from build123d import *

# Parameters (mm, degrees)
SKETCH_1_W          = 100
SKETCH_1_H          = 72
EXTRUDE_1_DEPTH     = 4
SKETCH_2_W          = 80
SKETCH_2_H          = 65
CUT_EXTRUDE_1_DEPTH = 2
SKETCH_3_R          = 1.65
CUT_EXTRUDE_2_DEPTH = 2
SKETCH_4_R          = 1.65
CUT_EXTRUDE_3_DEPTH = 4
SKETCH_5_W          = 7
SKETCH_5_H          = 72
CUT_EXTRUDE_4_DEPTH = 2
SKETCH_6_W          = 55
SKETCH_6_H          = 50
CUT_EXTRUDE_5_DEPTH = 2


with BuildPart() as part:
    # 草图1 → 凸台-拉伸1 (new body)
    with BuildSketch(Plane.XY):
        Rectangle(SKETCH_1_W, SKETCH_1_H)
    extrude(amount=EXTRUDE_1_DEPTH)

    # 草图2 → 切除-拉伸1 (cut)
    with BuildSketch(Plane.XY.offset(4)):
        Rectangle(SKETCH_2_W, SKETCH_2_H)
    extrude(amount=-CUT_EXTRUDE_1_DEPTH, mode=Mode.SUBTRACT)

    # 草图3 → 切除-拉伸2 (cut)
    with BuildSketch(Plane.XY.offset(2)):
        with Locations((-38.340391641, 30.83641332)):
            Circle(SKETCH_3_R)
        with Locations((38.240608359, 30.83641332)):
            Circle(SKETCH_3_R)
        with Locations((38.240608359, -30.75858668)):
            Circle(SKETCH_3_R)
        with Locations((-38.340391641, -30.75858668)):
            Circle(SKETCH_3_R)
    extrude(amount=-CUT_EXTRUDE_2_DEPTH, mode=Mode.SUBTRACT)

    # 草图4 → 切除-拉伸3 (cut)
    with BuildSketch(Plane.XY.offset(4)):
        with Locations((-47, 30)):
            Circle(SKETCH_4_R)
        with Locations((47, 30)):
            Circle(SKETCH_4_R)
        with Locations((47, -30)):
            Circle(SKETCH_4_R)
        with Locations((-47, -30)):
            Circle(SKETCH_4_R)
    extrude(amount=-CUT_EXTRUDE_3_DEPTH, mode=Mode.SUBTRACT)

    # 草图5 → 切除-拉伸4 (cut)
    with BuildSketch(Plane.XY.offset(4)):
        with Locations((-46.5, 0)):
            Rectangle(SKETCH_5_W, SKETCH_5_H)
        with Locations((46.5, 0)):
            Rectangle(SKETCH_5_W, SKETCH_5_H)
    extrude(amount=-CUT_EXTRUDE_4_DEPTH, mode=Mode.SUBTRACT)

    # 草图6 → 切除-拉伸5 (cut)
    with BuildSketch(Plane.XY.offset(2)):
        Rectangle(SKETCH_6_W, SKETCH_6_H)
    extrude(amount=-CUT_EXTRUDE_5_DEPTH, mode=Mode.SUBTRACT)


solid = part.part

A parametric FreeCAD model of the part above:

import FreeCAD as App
import Part
import Sketcher
from FreeCAD import Vector

doc = App.newDocument("Part")
body = doc.addObject("PartDesign::Body", "Body")

# Sketch on XY plane
sketch1 = doc.addObject("Sketcher::SketchObject", "Sketch")
body.addObject(sketch1)
sketch1.AttachmentSupport = (doc.XY_Plane, [""])
sketch1.MapMode = "FlatFace"
sketch1.addGeometry([
    Part.LineSegment(Vector(-50, 36, 0), Vector(-50, -36, 0)),
    Part.LineSegment(Vector(-50, -36, 0), Vector(50, -36, 0)),
    Part.LineSegment(Vector(50, -36, 0), Vector(50, 36, 0)),
    Part.LineSegment(Vector(50, 36, 0), Vector(-50, 36, 0)),
], False)
sketch1.addConstraint([
    Sketcher.Constraint("Coincident", 0, 2, 1, 1),
    Sketcher.Constraint("Coincident", 1, 2, 2, 1),
    Sketcher.Constraint("Coincident", 2, 2, 3, 1),
    Sketcher.Constraint("Coincident", 3, 2, 0, 1),
    Sketcher.Constraint("Vertical", 0),
    Sketcher.Constraint("Horizontal", 1),
    Sketcher.Constraint("Vertical", 2),
    Sketcher.Constraint("Horizontal", 3),
    Sketcher.Constraint("Symmetric", 0, 2, 2, 2, -1, 1),
    Sketcher.Constraint("DistanceX", 1, 1, 1, 2, 100.0),
    Sketcher.Constraint("DistanceY", 0, 2, 0, 1, 72.0),
])
pad1 = doc.addObject("PartDesign::Pad", "Pad")
body.addObject(pad1)
pad1.Profile = sketch1
pad1.Length = 4

# Sketch on XY plane
sketch2 = doc.addObject("Sketcher::SketchObject", "Sketch001")
body.addObject(sketch2)
sketch2.AttachmentSupport = (doc.XY_Plane, [""])
sketch2.MapMode = "FlatFace"
sketch2.AttachmentOffset = App.Placement(Vector(0, 0, 4), App.Rotation())
sketch2.addGeometry([
    Part.LineSegment(Vector(-40, 32, 0), Vector(-40, -32, 0)),
    Part.LineSegment(Vector(-40, -32, 0), Vector(40, -32, 0)),
    Part.LineSegment(Vector(40, -32, 0), Vector(40, 32, 0)),
    Part.LineSegment(Vector(40, 32, 0), Vector(-40, 32, 0)),
], False)
sketch2.addConstraint([
    Sketcher.Constraint("Coincident", 0, 2, 1, 1),
    Sketcher.Constraint("Coincident", 1, 2, 2, 1),
    Sketcher.Constraint("Coincident", 2, 2, 3, 1),
    Sketcher.Constraint("Coincident", 3, 2, 0, 1),
    Sketcher.Constraint("Vertical", 0),
    Sketcher.Constraint("Horizontal", 1),
    Sketcher.Constraint("Vertical", 2),
    Sketcher.Constraint("Horizontal", 3),
    Sketcher.Constraint("Symmetric", 0, 2, 2, 2, -1, 1),
    Sketcher.Constraint("DistanceX", 1, 1, 1, 2, 80.0),
    Sketcher.Constraint("DistanceY", 0, 2, 0, 1, 65.0),
])
pocket1 = doc.addObject("PartDesign::Pocket", "Pocket")
body.addObject(pocket1)
pocket1.Profile = sketch2
pocket1.Length = 2

# Sketch on XY plane
sketch3 = doc.addObject("Sketcher::SketchObject", "Sketch002")
body.addObject(sketch3)
sketch3.AttachmentSupport = (doc.XY_Plane, [""])
sketch3.MapMode = "FlatFace"
sketch3.AttachmentOffset = App.Placement(Vector(0, 0, 2), App.Rotation())
sketch3.addGeometry([
    Part.Circle(Vector(-38.3, 30.8, 0), Vector(0, 0, 1), 1.6),
    Part.Circle(Vector(38.2, 30.8, 0), Vector(0, 0, 1), 1.6),
    Part.Circle(Vector(38.2, -30.8, 0), Vector(0, 0, 1), 1.6),
    Part.Circle(Vector(-38.3, -30.8, 0), Vector(0, 0, 1), 1.6),
], False)
sketch3.addConstraint([
    Sketcher.Constraint("Equal", 0, 1),
    Sketcher.Constraint("Equal", 1, 2),
    Sketcher.Constraint("Equal", 2, 3),
    Sketcher.Constraint("Horizontal", 0, 3, 1, 3),
    Sketcher.Constraint("Horizontal", 2, 3, 3, 3),
    Sketcher.Constraint("Vertical", 1, 3, 2, 3),
    Sketcher.Constraint("Vertical", 0, 3, 3, 3),
    Sketcher.Constraint("Diameter", 0, 3.3),
    Sketcher.Constraint("DistanceX", 0, 3, 1, 3, 76.581),
    Sketcher.Constraint("DistanceY", 2, 3, 1, 3, 61.595),
    Sketcher.Constraint("DistanceX", 0, 3, -1, 1, 38.340392),
    Sketcher.Constraint("DistanceY", -1, 1, 0, 3, 30.836413),
])
pocket2 = doc.addObject("PartDesign::Pocket", "Pocket001")
body.addObject(pocket2)
pocket2.Profile = sketch3
pocket2.Length = 2

# Sketch on XY plane
sketch4 = doc.addObject("Sketcher::SketchObject", "Sketch003")
body.addObject(sketch4)
sketch4.AttachmentSupport = (doc.XY_Plane, [""])
sketch4.MapMode = "FlatFace"
sketch4.AttachmentOffset = App.Placement(Vector(0, 0, 4), App.Rotation())
sketch4.addGeometry([
    Part.Circle(Vector(-47, 30, 0), Vector(0, 0, 1), 1.6),
    Part.Circle(Vector(47, 30, 0), Vector(0, 0, 1), 1.6),
    Part.Circle(Vector(47, -30, 0), Vector(0, 0, 1), 1.6),
    Part.Circle(Vector(-47, -30, 0), Vector(0, 0, 1), 1.6),
], False)
sketch4.addConstraint([
    Sketcher.Constraint("Equal", 0, 1),
    Sketcher.Constraint("Equal", 1, 2),
    Sketcher.Constraint("Equal", 2, 3),
    Sketcher.Constraint("Symmetric", 0, 3, 2, 3, -1, 1),
    Sketcher.Constraint("Symmetric", 1, 3, 3, 3, -1, 1),
    Sketcher.Constraint("Symmetric", 0, 3, 1, 3, -2),
    Sketcher.Constraint("Diameter", 0, 3.3),
    Sketcher.Constraint("DistanceX", 0, 3, -1, 1, 47.0),
    Sketcher.Constraint("DistanceY", -1, 1, 0, 3, 30.0),
])
pocket3 = doc.addObject("PartDesign::Pocket", "Pocket002")
body.addObject(pocket3)
pocket3.Profile = sketch4
pocket3.Length = 4

# Sketch on XY plane
sketch5 = doc.addObject("Sketcher::SketchObject", "Sketch004")
body.addObject(sketch5)
sketch5.AttachmentSupport = (doc.XY_Plane, [""])
sketch5.MapMode = "FlatFace"
sketch5.AttachmentOffset = App.Placement(Vector(0, 0, 4), App.Rotation())
sketch5.addGeometry([
    Part.LineSegment(Vector(-50, 36, 0), Vector(-50, -36, 0)),  # 0
    Part.LineSegment(Vector(-50, -36, 0), Vector(-43, -36, 0)),  # 1
    Part.LineSegment(Vector(-43, -36, 0), Vector(-43, 36, 0)),  # 2
    Part.LineSegment(Vector(-43, 36, 0), Vector(-50, 36, 0)),  # 3
    Part.LineSegment(Vector(43, 36, 0), Vector(43, -36, 0)),  # 4
    Part.LineSegment(Vector(43, -36, 0), Vector(50, -36, 0)),  # 5
    Part.LineSegment(Vector(50, -36, 0), Vector(50, 36, 0)),  # 6
    Part.LineSegment(Vector(50, 36, 0), Vector(43, 36, 0)),  # 7
], False)
sketch5.addConstraint([
    Sketcher.Constraint("Coincident", 0, 2, 1, 1),
    Sketcher.Constraint("Coincident", 1, 2, 2, 1),
    Sketcher.Constraint("Coincident", 2, 2, 3, 1),
    Sketcher.Constraint("Coincident", 3, 2, 0, 1),
    Sketcher.Constraint("Coincident", 4, 2, 5, 1),
    Sketcher.Constraint("Coincident", 5, 2, 6, 1),
    Sketcher.Constraint("Coincident", 6, 2, 7, 1),
    Sketcher.Constraint("Coincident", 7, 2, 4, 1),
    Sketcher.Constraint("Vertical", 0),
    Sketcher.Constraint("Horizontal", 1),
    Sketcher.Constraint("Vertical", 2),
    Sketcher.Constraint("Horizontal", 3),
    Sketcher.Constraint("Vertical", 4),
    Sketcher.Constraint("Horizontal", 5),
    Sketcher.Constraint("Vertical", 6),
    Sketcher.Constraint("Horizontal", 7),
    Sketcher.Constraint("Symmetric", 2, 2, 4, 2, -1, 1),
    Sketcher.Constraint("Symmetric", 0, 2, 6, 2, -1, 1),
    Sketcher.Constraint("Horizontal", 1, 2, 4, 2),
    Sketcher.Constraint("DistanceX", 1, 1, 1, 2, 7.0),
    Sketcher.Constraint("DistanceY", 0, 2, 0, 1, 72.0),
    Sketcher.Constraint("DistanceX", 0, 2, -1, 1, 50.0),
])
pocket4 = doc.addObject("PartDesign::Pocket", "Pocket003")
body.addObject(pocket4)
pocket4.Profile = sketch5
pocket4.Length = 2

# Sketch on XY plane
sketch6 = doc.addObject("Sketcher::SketchObject", "Sketch005")
body.addObject(sketch6)
sketch6.AttachmentSupport = (doc.XY_Plane, [""])
sketch6.MapMode = "FlatFace"
sketch6.AttachmentOffset = App.Placement(Vector(0, 0, 2), App.Rotation())
sketch6.addGeometry([
    Part.LineSegment(Vector(-28, 25, 0), Vector(-28, -25, 0)),
    Part.LineSegment(Vector(-28, -25, 0), Vector(28, -25, 0)),
    Part.LineSegment(Vector(28, -25, 0), Vector(28, 25, 0)),
    Part.LineSegment(Vector(28, 25, 0), Vector(-28, 25, 0)),
], False)
sketch6.addConstraint([
    Sketcher.Constraint("Coincident", 0, 2, 1, 1),
    Sketcher.Constraint("Coincident", 1, 2, 2, 1),
    Sketcher.Constraint("Coincident", 2, 2, 3, 1),
    Sketcher.Constraint("Coincident", 3, 2, 0, 1),
    Sketcher.Constraint("Vertical", 0),
    Sketcher.Constraint("Horizontal", 1),
    Sketcher.Constraint("Vertical", 2),
    Sketcher.Constraint("Horizontal", 3),
    Sketcher.Constraint("Symmetric", 0, 2, 2, 2, -1, 1),
    Sketcher.Constraint("DistanceX", 1, 1, 1, 2, 55.0),
    Sketcher.Constraint("DistanceY", 0, 2, 0, 1, 50.0),
])
pocket5 = doc.addObject("PartDesign::Pocket", "Pocket004")
body.addObject(pocket5)
pocket5.Profile = sketch6
pocket5.Length = 2

doc.recompute()
